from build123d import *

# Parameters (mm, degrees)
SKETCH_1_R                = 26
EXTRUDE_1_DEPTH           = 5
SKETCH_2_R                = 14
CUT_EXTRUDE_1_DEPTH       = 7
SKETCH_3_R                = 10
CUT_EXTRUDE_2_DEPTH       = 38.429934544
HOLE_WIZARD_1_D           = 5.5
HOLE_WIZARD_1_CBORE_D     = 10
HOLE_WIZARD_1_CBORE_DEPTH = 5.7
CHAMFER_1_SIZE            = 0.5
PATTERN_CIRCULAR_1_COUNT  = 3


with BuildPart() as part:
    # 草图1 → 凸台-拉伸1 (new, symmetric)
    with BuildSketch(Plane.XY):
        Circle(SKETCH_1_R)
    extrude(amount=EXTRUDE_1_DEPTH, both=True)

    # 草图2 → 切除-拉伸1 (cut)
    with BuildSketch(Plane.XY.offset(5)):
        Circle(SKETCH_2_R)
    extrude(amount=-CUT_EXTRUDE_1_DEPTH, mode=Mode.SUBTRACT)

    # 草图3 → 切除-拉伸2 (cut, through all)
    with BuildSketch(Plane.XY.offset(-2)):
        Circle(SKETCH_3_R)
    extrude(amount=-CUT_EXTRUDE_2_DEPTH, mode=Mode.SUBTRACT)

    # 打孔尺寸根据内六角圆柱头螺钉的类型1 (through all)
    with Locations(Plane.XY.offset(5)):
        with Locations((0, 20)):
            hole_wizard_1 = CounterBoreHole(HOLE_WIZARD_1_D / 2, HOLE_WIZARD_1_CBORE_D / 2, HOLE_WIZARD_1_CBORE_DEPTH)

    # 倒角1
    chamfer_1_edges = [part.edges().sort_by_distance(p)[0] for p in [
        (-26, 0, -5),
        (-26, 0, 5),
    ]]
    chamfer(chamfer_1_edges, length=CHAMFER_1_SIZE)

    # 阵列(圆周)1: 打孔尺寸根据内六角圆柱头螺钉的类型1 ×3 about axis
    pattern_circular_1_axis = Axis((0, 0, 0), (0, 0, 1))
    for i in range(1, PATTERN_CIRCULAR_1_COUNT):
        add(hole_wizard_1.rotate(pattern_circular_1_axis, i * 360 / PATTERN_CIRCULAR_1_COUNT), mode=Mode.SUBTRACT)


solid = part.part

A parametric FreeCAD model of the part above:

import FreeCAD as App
import Part
import Sketcher
from FreeCAD import Vector


def edges_at(feature, points):
    """Names of the edges that pass closest to the given points."""
    edges = feature.Shape.Edges
    near = lambda p: min(range(len(edges)), key=lambda i: edges[i].distToShape(Part.Vertex(*p))[0])
    return sorted({f"Edge{near(p) + 1}" for p in points})

doc = App.newDocument("Part")
body = doc.addObject("PartDesign::Body", "Body")

# Sketch on XY plane
sketch1 = doc.addObject("Sketcher::SketchObject", "Sketch")
body.addObject(sketch1)
sketch1.AttachmentSupport = (doc.XY_Plane, [""])
sketch1.MapMode = "FlatFace"
sketch1.addGeometry(Part.Circle(Vector(0, 0, 0), Vector(0, 0, 1), 26), False)
sketch1.addConstraint([
    Sketcher.Constraint("Coincident", 0, 3, -1, 1),
    Sketcher.Constraint("Diameter", 0, 52.0),
])
pad1 = doc.addObject("PartDesign::Pad", "Pad")
body.addObject(pad1)
pad1.Profile = sketch1
pad1.Length = 10
pad1.Midplane = True

# Sketch on XY plane
sketch2 = doc.addObject("Sketcher::SketchObject", "Sketch001")
body.addObject(sketch2)
sketch2.AttachmentSupport = (doc.XY_Plane, [""])
sketch2.MapMode = "FlatFace"
sketch2.AttachmentOffset = App.Placement(Vector(0, 0, 5), App.Rotation())
sketch2.addGeometry(Part.Circle(Vector(0, 0, 0), Vector(0, 0, 1), 14), False)
sketch2.addConstraint([
    Sketcher.Constraint("Coincident", 0, 3, -1, 1),
    Sketcher.Constraint("Diameter", 0, 28.0),
])
pocket1 = doc.addObject("PartDesign::Pocket", "Pocket")
body.addObject(pocket1)
pocket1.Profile = sketch2
pocket1.Length = 7

# Sketch on XY plane
sketch3 = doc.addObject("Sketcher::SketchObject", "Sketch002")
body.addObject(sketch3)
sketch3.AttachmentSupport = (doc.XY_Plane, [""])
sketch3.MapMode = "FlatFace"
sketch3.AttachmentOffset = App.Placement(Vector(0, 0, -2), App.Rotation())
sketch3.addGeometry(Part.Circle(Vector(0, 0, 0), Vector(0, 0, 1), 10), False)
sketch3.addConstraint([
    Sketcher.Constraint("Coincident", 0, 3, -1, 1),
    Sketcher.Constraint("Diameter", 0, 20.0),
])
pocket2 = doc.addObject("PartDesign::Pocket", "Pocket001")
body.addObject(pocket2)
pocket2.Profile = sketch3
pocket2.Type = "ThroughAll"

# Sketch on XY plane
sketch4 = doc.addObject("Sketcher::SketchObject", "Sketch003")
body.addObject(sketch4)
sketch4.AttachmentSupport = (doc.XY_Plane, [""])
sketch4.MapMode = "FlatFace"
sketch4.AttachmentOffset = App.Placement(Vector(0, 0, 5), App.Rotation())
sketch4.addGeometry(Part.Circle(Vector(0, 20, 0), Vector(0, 0, 1), 2.8), False)
sketch4.addConstraint([
    Sketcher.Constraint("PointOnObject", 0, 3, -2),
    Sketcher.Constraint("Diameter", 0, 5.5),
    Sketcher.Constraint("DistanceY", -1, 1, 0, 3, 20.0),
])
doc.recompute()
hole = doc.addObject("PartDesign::Hole", "Hole")
body.addObject(hole)
hole.Profile = sketch4
hole.ThreadType = "None"
hole.Diameter = 5.5
hole.DepthType = "ThroughAll"
hole.HoleCutType = "Counterbore"
hole.HoleCutDiameter = 10
hole.HoleCutDepth = 5.7
doc.recompute()

chamfer = doc.addObject("PartDesign::Chamfer", "Chamfer")
body.addObject(chamfer)
chamfer.Base = (hole, edges_at(hole, [(-26, 0, -5), (-26, 0, 5)]))
chamfer.Size = 0.5
doc.recompute()

polarpattern = doc.addObject("PartDesign::PolarPattern", "PolarPattern")
body.addObject(polarpattern)
polarpattern.Originals = [hole]
polarpattern.Axis = (doc.Z_Axis, [""])
polarpattern.Angle = 360
polarpattern.Occurrences = 3
body.Tip = polarpattern

doc.recompute()
